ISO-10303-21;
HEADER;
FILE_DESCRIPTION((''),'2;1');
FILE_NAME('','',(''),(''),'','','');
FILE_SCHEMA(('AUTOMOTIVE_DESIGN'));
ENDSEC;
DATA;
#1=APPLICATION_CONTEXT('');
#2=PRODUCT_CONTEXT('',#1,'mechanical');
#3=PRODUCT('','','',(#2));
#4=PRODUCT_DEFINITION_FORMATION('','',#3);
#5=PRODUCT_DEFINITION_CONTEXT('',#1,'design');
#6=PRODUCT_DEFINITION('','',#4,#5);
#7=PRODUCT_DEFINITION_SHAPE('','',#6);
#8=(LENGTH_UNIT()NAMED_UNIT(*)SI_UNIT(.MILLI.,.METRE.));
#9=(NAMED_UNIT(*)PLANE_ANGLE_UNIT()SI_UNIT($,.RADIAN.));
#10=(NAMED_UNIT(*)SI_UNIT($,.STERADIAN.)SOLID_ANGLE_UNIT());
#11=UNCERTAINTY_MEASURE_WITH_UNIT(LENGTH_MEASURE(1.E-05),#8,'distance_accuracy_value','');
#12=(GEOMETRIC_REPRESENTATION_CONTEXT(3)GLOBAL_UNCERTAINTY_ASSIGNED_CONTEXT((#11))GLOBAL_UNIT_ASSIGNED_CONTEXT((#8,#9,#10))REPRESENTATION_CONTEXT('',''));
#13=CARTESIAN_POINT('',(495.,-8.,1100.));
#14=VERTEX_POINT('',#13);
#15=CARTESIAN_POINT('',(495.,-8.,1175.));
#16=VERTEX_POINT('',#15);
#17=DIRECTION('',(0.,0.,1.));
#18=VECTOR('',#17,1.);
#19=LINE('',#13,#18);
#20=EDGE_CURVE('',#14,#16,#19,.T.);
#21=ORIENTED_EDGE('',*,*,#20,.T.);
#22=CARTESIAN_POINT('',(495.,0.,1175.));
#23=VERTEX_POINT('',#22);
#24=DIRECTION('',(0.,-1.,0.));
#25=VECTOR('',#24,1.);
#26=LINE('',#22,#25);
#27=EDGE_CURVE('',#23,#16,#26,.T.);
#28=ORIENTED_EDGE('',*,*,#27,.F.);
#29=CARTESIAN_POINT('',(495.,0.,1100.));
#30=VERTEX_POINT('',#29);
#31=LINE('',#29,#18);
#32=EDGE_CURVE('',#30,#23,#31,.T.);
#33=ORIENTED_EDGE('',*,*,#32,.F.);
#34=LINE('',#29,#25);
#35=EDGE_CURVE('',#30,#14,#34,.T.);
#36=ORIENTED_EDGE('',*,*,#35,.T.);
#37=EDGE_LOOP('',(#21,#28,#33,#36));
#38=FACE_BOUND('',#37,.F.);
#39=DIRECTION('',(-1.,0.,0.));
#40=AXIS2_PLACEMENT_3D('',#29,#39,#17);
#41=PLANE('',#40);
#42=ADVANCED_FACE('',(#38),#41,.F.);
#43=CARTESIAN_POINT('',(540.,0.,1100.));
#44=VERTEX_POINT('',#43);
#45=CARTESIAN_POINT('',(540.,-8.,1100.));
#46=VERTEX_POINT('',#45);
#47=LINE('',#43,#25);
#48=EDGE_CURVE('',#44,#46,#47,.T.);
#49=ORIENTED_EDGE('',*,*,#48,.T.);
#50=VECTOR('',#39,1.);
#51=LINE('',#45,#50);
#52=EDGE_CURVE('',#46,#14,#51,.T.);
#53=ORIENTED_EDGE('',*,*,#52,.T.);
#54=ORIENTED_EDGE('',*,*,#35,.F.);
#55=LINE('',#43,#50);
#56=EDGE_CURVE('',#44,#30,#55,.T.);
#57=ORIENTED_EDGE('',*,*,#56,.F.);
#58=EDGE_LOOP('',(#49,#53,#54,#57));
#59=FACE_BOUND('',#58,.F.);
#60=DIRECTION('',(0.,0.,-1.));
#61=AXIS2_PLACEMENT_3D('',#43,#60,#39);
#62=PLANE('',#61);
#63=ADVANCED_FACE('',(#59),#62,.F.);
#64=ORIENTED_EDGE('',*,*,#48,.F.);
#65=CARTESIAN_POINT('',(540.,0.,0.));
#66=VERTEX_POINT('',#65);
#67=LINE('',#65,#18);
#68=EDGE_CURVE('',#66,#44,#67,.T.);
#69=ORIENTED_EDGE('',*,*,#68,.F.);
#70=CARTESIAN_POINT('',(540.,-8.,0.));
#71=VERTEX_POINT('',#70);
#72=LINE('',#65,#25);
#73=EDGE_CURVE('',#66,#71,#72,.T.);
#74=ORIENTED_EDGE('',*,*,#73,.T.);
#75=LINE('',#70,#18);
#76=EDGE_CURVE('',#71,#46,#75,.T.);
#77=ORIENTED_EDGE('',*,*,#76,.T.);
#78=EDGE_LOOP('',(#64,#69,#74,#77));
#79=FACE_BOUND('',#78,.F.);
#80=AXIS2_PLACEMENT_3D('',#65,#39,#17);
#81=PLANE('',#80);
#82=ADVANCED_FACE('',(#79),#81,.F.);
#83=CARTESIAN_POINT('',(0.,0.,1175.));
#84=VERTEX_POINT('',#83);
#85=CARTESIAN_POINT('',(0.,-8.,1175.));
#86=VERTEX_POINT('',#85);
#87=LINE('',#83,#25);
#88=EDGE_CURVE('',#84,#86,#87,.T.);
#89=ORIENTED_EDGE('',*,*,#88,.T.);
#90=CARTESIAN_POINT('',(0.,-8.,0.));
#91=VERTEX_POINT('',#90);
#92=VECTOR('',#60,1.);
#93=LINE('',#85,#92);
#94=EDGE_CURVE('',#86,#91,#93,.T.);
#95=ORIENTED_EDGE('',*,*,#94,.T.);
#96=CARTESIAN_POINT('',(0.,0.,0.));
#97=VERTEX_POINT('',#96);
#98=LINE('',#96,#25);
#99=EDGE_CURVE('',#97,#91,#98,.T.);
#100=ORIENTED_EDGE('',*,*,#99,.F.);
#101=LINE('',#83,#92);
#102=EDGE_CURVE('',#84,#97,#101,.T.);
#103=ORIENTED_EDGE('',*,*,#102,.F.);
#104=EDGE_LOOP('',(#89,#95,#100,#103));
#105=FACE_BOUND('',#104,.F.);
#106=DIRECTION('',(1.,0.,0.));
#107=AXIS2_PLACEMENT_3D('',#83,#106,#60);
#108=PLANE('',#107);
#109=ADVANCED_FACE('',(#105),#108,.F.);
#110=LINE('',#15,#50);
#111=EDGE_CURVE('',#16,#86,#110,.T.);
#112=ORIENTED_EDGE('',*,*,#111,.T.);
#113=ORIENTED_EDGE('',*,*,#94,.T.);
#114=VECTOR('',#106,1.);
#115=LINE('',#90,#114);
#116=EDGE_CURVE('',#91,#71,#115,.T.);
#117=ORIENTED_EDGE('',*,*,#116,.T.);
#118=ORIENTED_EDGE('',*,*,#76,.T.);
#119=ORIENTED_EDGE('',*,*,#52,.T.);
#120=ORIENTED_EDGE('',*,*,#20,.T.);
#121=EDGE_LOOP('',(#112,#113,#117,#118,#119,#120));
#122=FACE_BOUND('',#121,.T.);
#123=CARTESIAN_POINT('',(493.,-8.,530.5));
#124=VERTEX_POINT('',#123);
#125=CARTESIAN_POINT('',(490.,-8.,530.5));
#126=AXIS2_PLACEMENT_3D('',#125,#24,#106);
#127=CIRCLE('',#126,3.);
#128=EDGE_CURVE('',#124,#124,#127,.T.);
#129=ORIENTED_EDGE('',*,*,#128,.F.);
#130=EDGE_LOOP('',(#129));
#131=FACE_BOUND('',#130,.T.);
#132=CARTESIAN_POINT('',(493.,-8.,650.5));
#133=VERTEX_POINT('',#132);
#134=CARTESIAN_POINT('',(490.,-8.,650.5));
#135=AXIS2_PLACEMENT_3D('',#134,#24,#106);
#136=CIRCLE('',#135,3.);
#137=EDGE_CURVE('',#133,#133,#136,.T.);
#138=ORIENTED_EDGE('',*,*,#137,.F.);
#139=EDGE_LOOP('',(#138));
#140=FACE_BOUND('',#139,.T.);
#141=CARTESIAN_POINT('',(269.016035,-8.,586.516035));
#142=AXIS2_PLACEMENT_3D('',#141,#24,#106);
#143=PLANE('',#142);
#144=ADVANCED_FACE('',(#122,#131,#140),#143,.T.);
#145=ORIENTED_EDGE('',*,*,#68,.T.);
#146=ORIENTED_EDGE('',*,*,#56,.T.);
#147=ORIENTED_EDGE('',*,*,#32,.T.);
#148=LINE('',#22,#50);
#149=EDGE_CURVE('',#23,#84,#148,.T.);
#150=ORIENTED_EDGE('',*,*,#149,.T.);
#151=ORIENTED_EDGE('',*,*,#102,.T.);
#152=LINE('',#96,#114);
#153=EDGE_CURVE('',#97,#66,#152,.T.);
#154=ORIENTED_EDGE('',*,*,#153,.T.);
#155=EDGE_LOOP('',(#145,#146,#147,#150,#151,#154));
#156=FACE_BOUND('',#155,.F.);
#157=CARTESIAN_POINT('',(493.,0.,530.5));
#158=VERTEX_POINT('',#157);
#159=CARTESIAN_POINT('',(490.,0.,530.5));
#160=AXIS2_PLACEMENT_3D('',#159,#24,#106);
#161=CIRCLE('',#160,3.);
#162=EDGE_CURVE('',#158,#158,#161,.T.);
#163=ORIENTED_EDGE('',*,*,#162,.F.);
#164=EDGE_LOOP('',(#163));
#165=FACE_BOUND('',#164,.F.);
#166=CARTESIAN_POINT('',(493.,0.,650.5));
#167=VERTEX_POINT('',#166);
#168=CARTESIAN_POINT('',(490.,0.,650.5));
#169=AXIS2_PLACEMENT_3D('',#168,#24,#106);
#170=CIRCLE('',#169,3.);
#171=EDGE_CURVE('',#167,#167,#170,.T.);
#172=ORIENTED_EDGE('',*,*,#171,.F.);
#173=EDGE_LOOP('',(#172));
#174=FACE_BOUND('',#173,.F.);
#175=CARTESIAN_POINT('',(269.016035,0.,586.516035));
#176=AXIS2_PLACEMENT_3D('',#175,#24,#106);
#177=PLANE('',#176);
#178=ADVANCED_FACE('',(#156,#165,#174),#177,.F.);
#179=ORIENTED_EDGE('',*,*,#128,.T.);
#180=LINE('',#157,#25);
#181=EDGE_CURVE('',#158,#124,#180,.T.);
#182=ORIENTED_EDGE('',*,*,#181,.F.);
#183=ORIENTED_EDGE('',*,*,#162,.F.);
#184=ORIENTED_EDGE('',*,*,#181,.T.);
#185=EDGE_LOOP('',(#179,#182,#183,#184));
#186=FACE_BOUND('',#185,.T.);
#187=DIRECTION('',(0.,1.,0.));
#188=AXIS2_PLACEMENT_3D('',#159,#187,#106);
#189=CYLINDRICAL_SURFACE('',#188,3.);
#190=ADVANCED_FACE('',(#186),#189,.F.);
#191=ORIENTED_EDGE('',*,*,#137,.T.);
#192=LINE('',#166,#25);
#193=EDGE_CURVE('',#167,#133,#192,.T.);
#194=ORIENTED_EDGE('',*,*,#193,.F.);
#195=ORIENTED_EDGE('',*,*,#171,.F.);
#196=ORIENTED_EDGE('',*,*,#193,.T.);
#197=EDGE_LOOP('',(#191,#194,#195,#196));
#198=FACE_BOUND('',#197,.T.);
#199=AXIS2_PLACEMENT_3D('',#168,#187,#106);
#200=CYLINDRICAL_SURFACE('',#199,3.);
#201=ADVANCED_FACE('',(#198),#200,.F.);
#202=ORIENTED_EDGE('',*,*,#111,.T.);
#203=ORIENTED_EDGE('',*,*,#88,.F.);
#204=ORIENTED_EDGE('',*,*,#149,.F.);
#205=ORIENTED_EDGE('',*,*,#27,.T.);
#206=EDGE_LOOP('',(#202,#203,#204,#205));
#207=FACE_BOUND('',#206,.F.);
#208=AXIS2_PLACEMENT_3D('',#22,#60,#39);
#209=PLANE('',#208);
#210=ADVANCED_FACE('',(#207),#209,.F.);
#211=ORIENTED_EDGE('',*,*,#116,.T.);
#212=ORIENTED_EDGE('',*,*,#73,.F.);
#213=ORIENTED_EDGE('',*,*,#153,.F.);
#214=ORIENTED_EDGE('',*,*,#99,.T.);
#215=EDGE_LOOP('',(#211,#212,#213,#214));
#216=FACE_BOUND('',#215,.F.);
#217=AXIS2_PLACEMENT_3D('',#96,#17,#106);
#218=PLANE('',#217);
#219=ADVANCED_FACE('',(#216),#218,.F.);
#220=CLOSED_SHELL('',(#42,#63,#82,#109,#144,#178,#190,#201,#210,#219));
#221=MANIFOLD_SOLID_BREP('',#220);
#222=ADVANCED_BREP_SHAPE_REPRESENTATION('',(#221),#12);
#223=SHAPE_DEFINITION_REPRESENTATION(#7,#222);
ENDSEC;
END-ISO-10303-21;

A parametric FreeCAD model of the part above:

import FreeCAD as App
import Part
import Sketcher


def add_polygon(sketch, points):
    """Adds a closed chain of lines whose ends are joined by coincident constraints."""
    first, n = sketch.GeometryCount, len(points)
    for a, b in zip(points, points[1:] + points[:1]):
        sketch.addGeometry(Part.LineSegment(App.Vector(*a, 0), App.Vector(*b, 0)), False)
    for i in range(n):
        sketch.addConstraint(Sketcher.Constraint("Coincident", first + i, 2, first + (i + 1) % n, 1))

doc = App.newDocument("Part")
body = doc.addObject("PartDesign::Body", "Body")

# Sketch on XZ plane
sketch1 = body.newObject("Sketcher::SketchObject", "Sketch")
sketch1.AttachmentSupport = (doc.getObject("XZ_Plane"), [""])
sketch1.MapMode = "FlatFace"
add_polygon(sketch1, [(0, 1175), (0, 0), (540, 0), (540, 1100), (495, 1100), (495, 1175)])  # lines 0-5
sketch1.addGeometry(Part.Circle(App.Vector(490, 530.5, 0), App.Vector(0, 0, 1), 3), False)  # 6
sketch1.addGeometry(Part.Circle(App.Vector(490, 650.5, 0), App.Vector(0, 0, 1), 3), False)  # 7
sketch1.addConstraint([
    Sketcher.Constraint("Vertical", 0),
    Sketcher.Constraint("Horizontal", 1),
    Sketcher.Constraint("Vertical", 2),
    Sketcher.Constraint("Horizontal", 3),
    Sketcher.Constraint("Vertical", 4),
    Sketcher.Constraint("Horizontal", 5),
    Sketcher.Constraint("Coincident", 0, 2, -1, 1),
    Sketcher.Constraint("Equal", 6, 7),
    Sketcher.Constraint("Vertical", 6, 3, 7, 3),
    Sketcher.Constraint("Diameter", 6, 6.0),
    Sketcher.Constraint("DistanceX", 1, 1, 1, 2, 540.0),
    Sketcher.Constraint("DistanceX", 3, 2, 3, 1, 45.0),
    Sketcher.Constraint("DistanceY", 0, 2, 0, 1, 1175.0),
    Sketcher.Constraint("DistanceY", 2, 1, 2, 2, 1100.0),
    Sketcher.Constraint("DistanceX", -1, 1, 6, 3, 490.0),
    Sketcher.Constraint("DistanceY", 6, 3, 7, 3, 120.0),
    Sketcher.Constraint("DistanceY", -1, 1, 6, 3, 530.5),
])
pad1 = body.newObject("PartDesign::Pad", "Pad")
pad1.Profile = sketch1
pad1.Length = 8

doc.recompute()
